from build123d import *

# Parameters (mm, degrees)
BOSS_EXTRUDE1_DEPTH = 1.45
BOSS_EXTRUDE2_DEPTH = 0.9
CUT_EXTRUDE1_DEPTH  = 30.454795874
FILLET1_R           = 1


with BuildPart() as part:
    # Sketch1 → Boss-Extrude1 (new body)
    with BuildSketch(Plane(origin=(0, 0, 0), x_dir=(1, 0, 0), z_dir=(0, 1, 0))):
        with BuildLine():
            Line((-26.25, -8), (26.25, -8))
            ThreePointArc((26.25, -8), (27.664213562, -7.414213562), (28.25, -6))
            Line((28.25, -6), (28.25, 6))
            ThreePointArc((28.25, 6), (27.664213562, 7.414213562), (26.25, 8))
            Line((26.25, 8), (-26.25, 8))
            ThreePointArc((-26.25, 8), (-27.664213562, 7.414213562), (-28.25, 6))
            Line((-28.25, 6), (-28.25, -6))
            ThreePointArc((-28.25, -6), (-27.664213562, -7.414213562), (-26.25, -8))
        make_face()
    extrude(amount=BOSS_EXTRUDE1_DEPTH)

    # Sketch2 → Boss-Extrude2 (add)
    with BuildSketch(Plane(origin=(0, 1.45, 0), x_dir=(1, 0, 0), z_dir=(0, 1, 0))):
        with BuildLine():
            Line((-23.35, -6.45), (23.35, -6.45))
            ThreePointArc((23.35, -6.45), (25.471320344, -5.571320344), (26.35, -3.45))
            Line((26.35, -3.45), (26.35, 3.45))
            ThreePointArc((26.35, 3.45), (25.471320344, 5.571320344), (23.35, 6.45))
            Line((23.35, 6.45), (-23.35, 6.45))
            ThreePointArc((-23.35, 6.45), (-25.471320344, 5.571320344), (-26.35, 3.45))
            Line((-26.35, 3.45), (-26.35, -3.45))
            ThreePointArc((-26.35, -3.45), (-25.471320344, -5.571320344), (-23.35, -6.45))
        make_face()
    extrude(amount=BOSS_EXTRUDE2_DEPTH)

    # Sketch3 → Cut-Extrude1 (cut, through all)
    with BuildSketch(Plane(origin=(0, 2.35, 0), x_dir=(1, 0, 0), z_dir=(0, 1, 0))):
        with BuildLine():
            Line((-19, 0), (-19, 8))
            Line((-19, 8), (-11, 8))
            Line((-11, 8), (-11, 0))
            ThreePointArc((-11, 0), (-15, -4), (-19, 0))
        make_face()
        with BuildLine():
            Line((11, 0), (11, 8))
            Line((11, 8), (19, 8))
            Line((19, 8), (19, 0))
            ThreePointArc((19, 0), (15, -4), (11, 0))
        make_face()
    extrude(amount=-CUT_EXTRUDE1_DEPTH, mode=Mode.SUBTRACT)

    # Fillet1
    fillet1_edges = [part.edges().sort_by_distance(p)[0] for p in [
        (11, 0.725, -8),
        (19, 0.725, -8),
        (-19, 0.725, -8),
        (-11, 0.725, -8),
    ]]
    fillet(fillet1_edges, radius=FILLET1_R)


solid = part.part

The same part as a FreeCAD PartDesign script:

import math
import FreeCAD as App
import Part
import Sketcher
from FreeCAD import Vector
Q = App.Units.Quantity


def edges_at(feature, points):
    """Names of the edges that pass closest to the given points."""
    edges = feature.Shape.Edges
    near = lambda p: min(range(len(edges)), key=lambda i: edges[i].distToShape(Part.Vertex(*p))[0])
    return sorted({f"Edge{near(p) + 1}" for p in points})

doc = App.newDocument("Part")
body = doc.addObject("PartDesign::Body", "Body")

sketch1 = body.newObject("Sketcher::SketchObject", "Sketch")
sketch1.AttachmentSupport = (doc.getObject("XZ_Plane"), [""])
sketch1.MapMode = "FlatFace"
sketch1.addGeometry([
    Part.LineSegment(Vector(-26.2, 8, 0), Vector(26.2, 8, 0)),
    Part.ArcOfCircle(Part.Circle(Vector(26.2, 6, 0), Vector(0, 0, 1), 2), math.radians(0), math.radians(90)),
    Part.LineSegment(Vector(28.2, 6, 0), Vector(28.2, -6, 0)),
    Part.ArcOfCircle(Part.Circle(Vector(26.2, -6, 0), Vector(0, 0, 1), 2), math.radians(-90), math.radians(0)),
    Part.LineSegment(Vector(26.2, -8, 0), Vector(-26.2, -8, 0)),
    Part.ArcOfCircle(Part.Circle(Vector(-26.2, -6, 0), Vector(0, 0, 1), 2), math.radians(-180), math.radians(-90)),
    Part.LineSegment(Vector(-28.2, -6, 0), Vector(-28.2, 6, 0)),
    Part.ArcOfCircle(Part.Circle(Vector(-26.2, 6, 0), Vector(0, 0, 1), 2), math.radians(90), math.radians(180)),
], False)
sketch1.addConstraint([
    Sketcher.Constraint("Tangent", 0, 2, 1, 2),
    Sketcher.Constraint("Tangent", 1, 1, 2, 1),
    Sketcher.Constraint("Tangent", 2, 2, 3, 2),
    Sketcher.Constraint("Tangent", 3, 1, 4, 1),
    Sketcher.Constraint("Tangent", 4, 2, 5, 2),
    Sketcher.Constraint("Tangent", 5, 1, 6, 1),
    Sketcher.Constraint("Tangent", 6, 2, 7, 2),
    Sketcher.Constraint("Tangent", 7, 1, 0, 1),
    Sketcher.Constraint("Horizontal", 0),
    Sketcher.Constraint("Vertical", 2),
    Sketcher.Constraint("Horizontal", 4),
    Sketcher.Constraint("Vertical", 6),
    Sketcher.Constraint("Equal", 1, 3),
    Sketcher.Constraint("Equal", 3, 5),
    Sketcher.Constraint("Equal", 5, 7),
    Sketcher.Constraint("Symmetric", 1, 3, 5, 3, -1, 1),
    Sketcher.Constraint("Radius", 1, Q("2 mm")),
    Sketcher.Constraint("DistanceY", 2, 2, 2, 1, Q("12 mm")),
    Sketcher.Constraint("DistanceX", 0, 1, 0, 2, Q("52.5 mm")),
])
pad1 = body.newObject("PartDesign::Pad", "Pad")
pad1.Profile = sketch1
pad1.Length = 1.45
pad1.Reversed = True

sketch2 = body.newObject("Sketcher::SketchObject", "Sketch001")
sketch2.AttachmentSupport = (doc.getObject("XZ_Plane"), [""])
sketch2.MapMode = "FlatFace"
sketch2.AttachmentOffset = App.Placement(Vector(0, 0, -1.45), App.Rotation())
sketch2.addGeometry([
    Part.LineSegment(Vector(-23.4, 6.5, 0), Vector(23.4, 6.5, 0)),
    Part.ArcOfCircle(Part.Circle(Vector(23.4, 3.5, 0), Vector(0, 0, 1), 3), math.radians(0), math.radians(90)),
    Part.LineSegment(Vector(26.4, 3.5, 0), Vector(26.4, -3.5, 0)),
    Part.ArcOfCircle(Part.Circle(Vector(23.4, -3.5, 0), Vector(0, 0, 1), 3), math.radians(-90), math.radians(0)),
    Part.LineSegment(Vector(23.4, -6.5, 0), Vector(-23.4, -6.5, 0)),
    Part.ArcOfCircle(Part.Circle(Vector(-23.4, -3.5, 0), Vector(0, 0, 1), 3), math.radians(180), math.radians(270)),
    Part.LineSegment(Vector(-26.4, -3.5, 0), Vector(-26.4, 3.5, 0)),
    Part.ArcOfCircle(Part.Circle(Vector(-23.4, 3.5, 0), Vector(0, 0, 1), 3), math.radians(90), math.radians(180)),
], False)
sketch2.addConstraint([
    Sketcher.Constraint("Tangent", 0, 2, 1, 2),
    Sketcher.Constraint("Tangent", 1, 1, 2, 1),
    Sketcher.Constraint("Tangent", 2, 2, 3, 2),
    Sketcher.Constraint("Tangent", 3, 1, 4, 1),
    Sketcher.Constraint("Tangent", 4, 2, 5, 2),
    Sketcher.Constraint("Tangent", 5, 1, 6, 1),
    Sketcher.Constraint("Tangent", 6, 2, 7, 2),
    Sketcher.Constraint("Tangent", 7, 1, 0, 1),
    Sketcher.Constraint("Horizontal", 0),
    Sketcher.Constraint("Vertical", 2),
    Sketcher.Constraint("Horizontal", 4),
    Sketcher.Constraint("Vertical", 6),
    Sketcher.Constraint("Equal", 1, 3),
    Sketcher.Constraint("Equal", 3, 5),
    Sketcher.Constraint("Equal", 5, 7),
    Sketcher.Constraint("Symmetric", 1, 3, 5, 3, -1, 1),
    Sketcher.Constraint("Radius", 1, Q("3 mm")),
    Sketcher.Constraint("DistanceX", 0, 1, 0, 2, Q("46.7 mm")),
    Sketcher.Constraint("DistanceY", 2, 2, 2, 1, Q("6.9 mm")),
])
pad2 = body.newObject("PartDesign::Pad", "Pad001")
pad2.Profile = sketch2
pad2.Length = 0.9
pad2.Reversed = True

sketch3 = body.newObject("Sketcher::SketchObject", "Sketch002")
sketch3.AttachmentSupport = (doc.getObject("XZ_Plane"), [""])
sketch3.MapMode = "FlatFace"
sketch3.AttachmentOffset = App.Placement(Vector(0, 0, -2.35), App.Rotation())
sketch3.addGeometry([
    Part.LineSegment(Vector(-19, -8, 0), Vector(-19, 0, 0)),
    Part.ArcOfCircle(Part.Circle(Vector(-15, 0, 0), Vector(0, 0, 1), 4), math.radians(0), math.radians(180)),
    Part.LineSegment(Vector(-11, 0, 0), Vector(-11, -8, 0)),
    Part.LineSegment(Vector(-11, -8, 0), Vector(-19, -8, 0)),
    Part.LineSegment(Vector(11, -8, 0), Vector(11, 0, 0)),
    Part.ArcOfCircle(Part.Circle(Vector(15, 0, 0), Vector(0, 0, 1), 4), math.radians(0), math.radians(180)),
    Part.LineSegment(Vector(19, 0, 0), Vector(19, -8, 0)),
    Part.LineSegment(Vector(19, -8, 0), Vector(11, -8, 0)),
], False)
sketch3.addConstraint([
    Sketcher.Constraint("Tangent", 0, 2, 1, 2),
    Sketcher.Constraint("Tangent", 1, 1, 2, 1),
    Sketcher.Constraint("Coincident", 2, 2, 3, 1),
    Sketcher.Constraint("Coincident", 3, 2, 0, 1),
    Sketcher.Constraint("Tangent", 4, 2, 5, 2),
    Sketcher.Constraint("Tangent", 5, 1, 6, 1),
    Sketcher.Constraint("Coincident", 6, 2, 7, 1),
    Sketcher.Constraint("Coincident", 7, 2, 4, 1),
    Sketcher.Constraint("Vertical", 0),
    Sketcher.Constraint("Vertical", 2),
    Sketcher.Constraint("Horizontal", 3),
    Sketcher.Constraint("Vertical", 4),
    Sketcher.Constraint("Vertical", 6),
    Sketcher.Constraint("Horizontal", 7),
    Sketcher.Constraint("Equal", 1, 5),
    Sketcher.Constraint("Symmetric", 1, 3, 5, 3, -1, 1),
    Sketcher.Constraint("PointOnObject", 1, 3, -1),
    Sketcher.Constraint("Horizontal", 3, 2, 6, 2),
    Sketcher.Constraint("Equal", 7, 0),
    Sketcher.Constraint("Radius", 1, Q("4 mm")),
    Sketcher.Constraint("DistanceX", 1, 3, -1, 1, Q("15 mm")),
])
pocket1 = body.newObject("PartDesign::Pocket", "Pocket")
pocket1.Profile = sketch3
pocket1.Type = "ThroughAll"
pocket1.Reversed = True
doc.recompute()

fillet = body.newObject("PartDesign::Fillet", "Fillet")
fillet.Base = (pocket1, edges_at(pocket1, [
    (11, 0.725, -8),
    (19, 0.725, -8),
    (-19, 0.725, -8),
    (-11, 0.725, -8),
]))
fillet.Radius = 1

doc.recompute()
